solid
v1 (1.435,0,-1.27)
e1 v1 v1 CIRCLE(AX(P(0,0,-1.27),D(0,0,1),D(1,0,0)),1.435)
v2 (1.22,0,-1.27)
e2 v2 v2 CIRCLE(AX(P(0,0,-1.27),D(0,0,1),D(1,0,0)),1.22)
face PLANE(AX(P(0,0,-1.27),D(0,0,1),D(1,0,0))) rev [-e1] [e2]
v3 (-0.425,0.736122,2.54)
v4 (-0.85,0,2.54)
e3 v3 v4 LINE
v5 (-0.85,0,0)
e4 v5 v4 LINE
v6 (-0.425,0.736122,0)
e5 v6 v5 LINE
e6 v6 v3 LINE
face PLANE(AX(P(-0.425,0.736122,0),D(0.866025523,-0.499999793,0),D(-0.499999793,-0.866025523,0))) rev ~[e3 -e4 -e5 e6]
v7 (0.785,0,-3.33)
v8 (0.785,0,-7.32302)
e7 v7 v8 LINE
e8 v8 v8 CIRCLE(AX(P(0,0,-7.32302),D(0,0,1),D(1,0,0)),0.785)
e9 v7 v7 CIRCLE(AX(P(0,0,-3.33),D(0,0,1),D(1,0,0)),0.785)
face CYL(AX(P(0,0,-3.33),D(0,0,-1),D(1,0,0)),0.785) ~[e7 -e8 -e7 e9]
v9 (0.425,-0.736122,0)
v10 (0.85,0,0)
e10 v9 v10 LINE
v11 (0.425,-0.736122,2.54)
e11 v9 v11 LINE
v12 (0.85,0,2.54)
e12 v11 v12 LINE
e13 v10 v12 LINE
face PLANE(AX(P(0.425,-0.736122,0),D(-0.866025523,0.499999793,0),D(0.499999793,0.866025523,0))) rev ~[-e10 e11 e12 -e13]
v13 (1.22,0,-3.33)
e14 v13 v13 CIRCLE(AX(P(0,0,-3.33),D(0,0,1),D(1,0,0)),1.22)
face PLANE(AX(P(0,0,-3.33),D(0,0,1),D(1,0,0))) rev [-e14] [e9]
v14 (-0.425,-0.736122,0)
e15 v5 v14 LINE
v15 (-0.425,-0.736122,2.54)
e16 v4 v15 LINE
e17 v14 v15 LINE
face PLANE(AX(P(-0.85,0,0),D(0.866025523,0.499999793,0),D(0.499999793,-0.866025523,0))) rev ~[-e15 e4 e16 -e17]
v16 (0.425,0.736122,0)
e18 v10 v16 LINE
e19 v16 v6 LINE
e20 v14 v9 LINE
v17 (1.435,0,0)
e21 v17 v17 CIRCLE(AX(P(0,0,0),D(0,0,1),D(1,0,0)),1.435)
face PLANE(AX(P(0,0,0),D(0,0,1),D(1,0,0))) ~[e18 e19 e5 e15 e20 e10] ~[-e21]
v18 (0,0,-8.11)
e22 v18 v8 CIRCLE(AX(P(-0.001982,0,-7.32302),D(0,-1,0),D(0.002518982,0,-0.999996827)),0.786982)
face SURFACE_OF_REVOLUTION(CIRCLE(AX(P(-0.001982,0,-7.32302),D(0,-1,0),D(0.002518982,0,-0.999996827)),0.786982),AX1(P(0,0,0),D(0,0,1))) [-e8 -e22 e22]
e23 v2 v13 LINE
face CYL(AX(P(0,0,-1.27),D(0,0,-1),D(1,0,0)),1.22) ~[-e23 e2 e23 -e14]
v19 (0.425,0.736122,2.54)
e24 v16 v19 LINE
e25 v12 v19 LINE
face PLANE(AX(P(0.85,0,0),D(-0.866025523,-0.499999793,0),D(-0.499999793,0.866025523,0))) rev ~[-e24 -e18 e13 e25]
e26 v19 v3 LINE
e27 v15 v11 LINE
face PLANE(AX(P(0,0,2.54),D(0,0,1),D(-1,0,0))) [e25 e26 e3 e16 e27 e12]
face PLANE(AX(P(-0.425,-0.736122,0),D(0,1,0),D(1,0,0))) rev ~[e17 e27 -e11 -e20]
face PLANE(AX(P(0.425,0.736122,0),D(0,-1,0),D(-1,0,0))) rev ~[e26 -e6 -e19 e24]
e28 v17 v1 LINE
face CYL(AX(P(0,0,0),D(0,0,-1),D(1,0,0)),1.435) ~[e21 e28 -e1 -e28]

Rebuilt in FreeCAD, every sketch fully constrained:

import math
import FreeCAD as App
import Part
import Sketcher
Q = App.Units.Quantity


def add_polygon(sketch, points):
    """Adds a closed chain of lines whose ends are joined by coincident constraints."""
    first, n = sketch.GeometryCount, len(points)
    for a, b in zip(points, points[1:] + points[:1]):
        sketch.addGeometry(Part.LineSegment(App.Vector(*a, 0), App.Vector(*b, 0)), False)
    for i in range(n):
        sketch.addConstraint(Sketcher.Constraint("Coincident", first + i, 2, first + (i + 1) % n, 1))

doc = App.newDocument("Part")
params = doc.addObject("Spreadsheet::Sheet", "Params")
for row, (alias, value) in enumerate([
    ("sketch1_height", "0.05 in"),
    ("revolution_angle", "360 deg"),
    ("pad1_length", "0.1 in"),
], start=1):
    params.set(f"A{row}", alias)
    params.set(f"B{row}", "=" + value)
    params.setAlias(f"B{row}", alias)

body = doc.addObject("PartDesign::Body", "Body")

# Sketch on XZ plane
sketch1 = body.newObject("Sketcher::SketchObject", "Sketch")
sketch1.AttachmentSupport = (doc.getObject("XZ_Plane"), [""])
sketch1.MapMode = "FlatFace"
sketch1.addGeometry(Part.LineSegment(App.Vector(1.435, 0, 0), App.Vector(0, 0, 0)), False)
sketch1.addGeometry(Part.LineSegment(App.Vector(0, 0, 0), App.Vector(0, -8.11, 0)), False)
sketch1.addGeometry(Part.ArcOfCircle(Part.Circle(App.Vector(-0.001982, -7.32302, 0), App.Vector(0, 0, 1), 0.786982), math.radians(-89.855673), math.radians(0.000007)), False)
sketch1.addGeometry(Part.LineSegment(App.Vector(0.785, -7.32302, 0), App.Vector(0.785, -3.33, 0)), False)
sketch1.addGeometry(Part.LineSegment(App.Vector(0.785, -3.33, 0), App.Vector(1.22, -3.33, 0)), False)
sketch1.addGeometry(Part.LineSegment(App.Vector(1.22, -3.33, 0), App.Vector(1.22, -1.27, 0)), False)
sketch1.addGeometry(Part.LineSegment(App.Vector(1.22, -1.27, 0), App.Vector(1.435, -1.27, 0)), False)
sketch1.addGeometry(Part.LineSegment(App.Vector(1.435, -1.27, 0), App.Vector(1.435, 0, 0)), False)
sketch1.addConstraint(Sketcher.Constraint("Coincident", 0, 2, 1, 1))
sketch1.addConstraint(Sketcher.Constraint("Coincident", 1, 2, 2, 1))
sketch1.addConstraint(Sketcher.Constraint("Tangent", 2, 2, 3, 1))
sketch1.addConstraint(Sketcher.Constraint("Coincident", 3, 2, 4, 1))
sketch1.addConstraint(Sketcher.Constraint("Coincident", 4, 2, 5, 1))
sketch1.addConstraint(Sketcher.Constraint("Coincident", 5, 2, 6, 1))
sketch1.addConstraint(Sketcher.Constraint("Coincident", 6, 2, 7, 1))
sketch1.addConstraint(Sketcher.Constraint("Coincident", 7, 2, 0, 1))
sketch1.addConstraint(Sketcher.Constraint("Horizontal", 0))
sketch1.addConstraint(Sketcher.Constraint("Vertical", 1))
sketch1.addConstraint(Sketcher.Constraint("Vertical", 3))
sketch1.addConstraint(Sketcher.Constraint("Horizontal", 4))
sketch1.addConstraint(Sketcher.Constraint("Vertical", 5))
sketch1.addConstraint(Sketcher.Constraint("Horizontal", 6))
sketch1.addConstraint(Sketcher.Constraint("Vertical", 7))
sketch1.addConstraint(Sketcher.Constraint("Coincident", 0, 2, -1, 1))
sketch1.addConstraint(Sketcher.Constraint("DistanceY", 7, 1, 7, 2, Q("0.05 in")))
sketch1.addConstraint(Sketcher.Constraint("DistanceX", 0, 2, 0, 1, Q("1.435 mm")))
sketch1.addConstraint(Sketcher.Constraint("DistanceX", 4, 1, 4, 2, Q("0.435 mm")))
sketch1.addConstraint(Sketcher.Constraint("DistanceX", 6, 1, 6, 2, Q("0.215 mm")))
sketch1.addConstraint(Sketcher.Constraint("DistanceY", 1, 2, 1, 1, Q("8.11 mm")))
sketch1.addConstraint(Sketcher.Constraint("DistanceY", 5, 1, 5, 2, Q("2.06 mm")))
sketch1.addConstraint(Sketcher.Constraint("Radius", 2, Q("0.786982 mm")))
sketch1.setExpression("Constraints[16]", "Params.sketch1_height")
revolution = body.newObject("PartDesign::Revolution", "Revolution")
revolution.Profile = sketch1
revolution.ReferenceAxis = (sketch1, ["V_Axis"])
revolution.setExpression("Angle", "Params.revolution_angle")

# Sketch on XY plane
sketch2 = body.newObject("Sketcher::SketchObject", "Sketch001")
sketch2.AttachmentSupport = (doc.getObject("XY_Plane"), [""])
sketch2.MapMode = "FlatFace"
add_polygon(sketch2, [(-0.425, -0.736122), (0.425, -0.736122), (0.85, 0), (0.425, 0.736122), (-0.425, 0.736122), (-0.85, 0)])  # lines 0-5
sketch2.addConstraint(Sketcher.Constraint("Horizontal", 0))
sketch2.addConstraint(Sketcher.Constraint("Horizontal", 3))
sketch2.addConstraint(Sketcher.Constraint("Symmetric", 0, 2, 3, 2, -1, 1))
sketch2.addConstraint(Sketcher.Constraint("Symmetric", 1, 2, 4, 2, -1, 1))
sketch2.addConstraint(Sketcher.Constraint("PointOnObject", 1, 2, -1))
sketch2.addConstraint(Sketcher.Constraint("Parallel", 2, 5))
sketch2.addConstraint(Sketcher.Constraint("Vertical", 0, 2, 2, 2))
sketch2.addConstraint(Sketcher.Constraint("Angle", 1, Q("60.000014 deg")))
sketch2.addConstraint(Sketcher.Constraint("DistanceX", 0, 1, 0, 2, Q("0.85 mm")))
sketch2.addConstraint(Sketcher.Constraint("Distance", 1, Q("0.85 mm")))
pad1 = body.newObject("PartDesign::Pad", "Pad")
pad1.Profile = sketch2
pad1.setExpression("Length", "Params.pad1_length")

doc.recompute()
